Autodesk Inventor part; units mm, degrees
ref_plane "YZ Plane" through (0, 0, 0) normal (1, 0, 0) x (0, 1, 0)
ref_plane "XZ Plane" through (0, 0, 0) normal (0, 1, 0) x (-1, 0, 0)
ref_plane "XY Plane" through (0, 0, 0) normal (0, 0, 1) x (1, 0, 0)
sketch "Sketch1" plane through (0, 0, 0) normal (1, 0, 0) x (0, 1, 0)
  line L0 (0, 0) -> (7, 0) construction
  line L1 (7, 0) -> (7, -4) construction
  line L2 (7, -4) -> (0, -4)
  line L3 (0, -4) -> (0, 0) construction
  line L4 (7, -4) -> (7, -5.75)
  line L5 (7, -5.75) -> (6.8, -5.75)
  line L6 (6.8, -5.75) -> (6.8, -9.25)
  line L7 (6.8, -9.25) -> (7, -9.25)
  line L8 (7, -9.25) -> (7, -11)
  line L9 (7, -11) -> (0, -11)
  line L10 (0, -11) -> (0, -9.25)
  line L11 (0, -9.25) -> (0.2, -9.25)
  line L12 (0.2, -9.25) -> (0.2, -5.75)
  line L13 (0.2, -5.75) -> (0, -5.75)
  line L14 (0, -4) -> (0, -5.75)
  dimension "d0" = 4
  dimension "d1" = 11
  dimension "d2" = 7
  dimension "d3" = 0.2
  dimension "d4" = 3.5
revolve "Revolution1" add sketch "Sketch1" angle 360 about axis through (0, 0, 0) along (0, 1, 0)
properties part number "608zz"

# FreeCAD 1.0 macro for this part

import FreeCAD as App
import Part
import Sketcher
Q = App.Units.Quantity

doc = App.newDocument("Part")
params = doc.addObject("Spreadsheet::Sheet", "Params")
for row, (alias, value) in enumerate([
    ("sketch1_width", "7 mm"),
    ("sketch1_width2", "0.2 mm"),
    ("sketch1_height", "3.5 mm"),
    ("revolution_angle", "360 deg"),
], start=1):
    params.set(f"A{row}", alias)
    params.set(f"B{row}", "=" + value)
    params.setAlias(f"B{row}", alias)

body = doc.addObject("PartDesign::Body", "Body")

sketch1 = body.newObject("Sketcher::SketchObject", "Sketch")
sketch1.AttachmentSupport = (doc.getObject("YZ_Plane"), [""])
sketch1.MapMode = "FlatFace"
sketch1.addGeometry([
    Part.LineSegment(App.Vector(7, -5.75, 0), App.Vector(7, -4, 0)),
    Part.LineSegment(App.Vector(7, -4, 0), App.Vector(0, -4, 0)),
    Part.LineSegment(App.Vector(0, -4, 0), App.Vector(0, -5.75, 0)),
    Part.LineSegment(App.Vector(0, -5.75, 0), App.Vector(0.2, -5.75, 0)),
    Part.LineSegment(App.Vector(0.2, -5.75, 0), App.Vector(0.2, -9.25, 0)),
    Part.LineSegment(App.Vector(0.2, -9.25, 0), App.Vector(0, -9.25, 0)),
    Part.LineSegment(App.Vector(0, -9.25, 0), App.Vector(0, -11, 0)),
    Part.LineSegment(App.Vector(0, -11, 0), App.Vector(7, -11, 0)),
    Part.LineSegment(App.Vector(7, -11, 0), App.Vector(7, -9.25, 0)),
    Part.LineSegment(App.Vector(7, -9.25, 0), App.Vector(6.8, -9.25, 0)),
    Part.LineSegment(App.Vector(6.8, -9.25, 0), App.Vector(6.8, -5.75, 0)),
    Part.LineSegment(App.Vector(6.8, -5.75, 0), App.Vector(7, -5.75, 0)),
], False)
sketch1.addConstraint([
    Sketcher.Constraint("Coincident", 0, 2, 1, 1),
    Sketcher.Constraint("Coincident", 1, 2, 2, 1),
    Sketcher.Constraint("Coincident", 2, 2, 3, 1),
    Sketcher.Constraint("Coincident", 3, 2, 4, 1),
    Sketcher.Constraint("Coincident", 4, 2, 5, 1),
    Sketcher.Constraint("Coincident", 5, 2, 6, 1),
    Sketcher.Constraint("Coincident", 6, 2, 7, 1),
    Sketcher.Constraint("Coincident", 7, 2, 8, 1),
    Sketcher.Constraint("Coincident", 8, 2, 9, 1),
    Sketcher.Constraint("Coincident", 9, 2, 10, 1),
    Sketcher.Constraint("Coincident", 10, 2, 11, 1),
    Sketcher.Constraint("Coincident", 11, 2, 0, 1),
    Sketcher.Constraint("Vertical", 0),
    Sketcher.Constraint("Horizontal", 1),
    Sketcher.Constraint("Vertical", 2),
    Sketcher.Constraint("Horizontal", 3),
    Sketcher.Constraint("Vertical", 4),
    Sketcher.Constraint("Horizontal", 5),
    Sketcher.Constraint("Vertical", 6),
    Sketcher.Constraint("Horizontal", 7),
    Sketcher.Constraint("Vertical", 8),
    Sketcher.Constraint("Horizontal", 9),
    Sketcher.Constraint("Vertical", 10),
    Sketcher.Constraint("Horizontal", 11),
    Sketcher.Constraint("PointOnObject", 1, 2, -2),
    Sketcher.Constraint("PointOnObject", 5, 2, -2),
    Sketcher.Constraint("Horizontal", 5, 2, 8, 2),
    Sketcher.Constraint("Horizontal", 3, 2, 10, 2),
    Sketcher.Constraint("Vertical", 0, 2, 7, 2),
    Sketcher.Constraint("Equal", 5, 9),
    Sketcher.Constraint("Equal", 2, 6),
    Sketcher.Constraint("DistanceX", 1, 2, 1, 1, Q("7 mm")),
    Sketcher.Constraint("DistanceX", 3, 1, 3, 2, Q("0.2 mm")),
    Sketcher.Constraint("DistanceY", 4, 2, 4, 1, Q("3.5 mm")),
    Sketcher.Constraint("DistanceY", 0, 2, -1, 1, Q("4 mm")),
    Sketcher.Constraint("DistanceY", 6, 2, -1, 1, Q("11 mm")),
])
sketch1.setExpression("Constraints[31]", "Params.sketch1_width")
sketch1.setExpression("Constraints[32]", "Params.sketch1_width2")
sketch1.setExpression("Constraints[33]", "Params.sketch1_height")
revolution = body.newObject("PartDesign::Revolution", "Revolution")
revolution.Profile = sketch1
revolution.ReferenceAxis = (sketch1, ["H_Axis"])
revolution.setExpression("Angle", "Params.revolution_angle")

doc.recompute()
